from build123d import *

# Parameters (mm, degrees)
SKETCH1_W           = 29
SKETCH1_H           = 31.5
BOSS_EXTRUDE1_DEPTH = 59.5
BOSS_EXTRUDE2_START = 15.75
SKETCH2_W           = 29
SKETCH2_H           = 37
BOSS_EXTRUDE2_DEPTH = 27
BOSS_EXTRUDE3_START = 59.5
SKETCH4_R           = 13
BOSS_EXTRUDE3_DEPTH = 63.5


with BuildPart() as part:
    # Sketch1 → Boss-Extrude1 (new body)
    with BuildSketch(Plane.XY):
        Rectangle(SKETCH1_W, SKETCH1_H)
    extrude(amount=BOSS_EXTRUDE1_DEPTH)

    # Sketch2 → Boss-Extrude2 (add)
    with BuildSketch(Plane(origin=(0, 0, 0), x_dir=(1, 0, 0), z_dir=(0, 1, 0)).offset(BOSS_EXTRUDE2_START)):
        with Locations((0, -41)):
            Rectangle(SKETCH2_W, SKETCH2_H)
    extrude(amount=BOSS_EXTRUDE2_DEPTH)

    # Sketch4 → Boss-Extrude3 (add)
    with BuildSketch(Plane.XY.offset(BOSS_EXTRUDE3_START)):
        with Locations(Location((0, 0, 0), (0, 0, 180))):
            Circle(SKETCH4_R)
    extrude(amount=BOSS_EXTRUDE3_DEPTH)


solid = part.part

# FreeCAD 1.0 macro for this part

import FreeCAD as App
import Part
import Sketcher

doc = App.newDocument("Part")
body = doc.addObject("PartDesign::Body", "Body")

sketch1 = body.newObject("Sketcher::SketchObject", "Sketch")
sketch1.AttachmentSupport = (doc.getObject("XY_Plane"), [""])
sketch1.MapMode = "FlatFace"
sketch1.addGeometry([
    Part.LineSegment(App.Vector(-14, 16, 0), App.Vector(-14, -16, 0)),
    Part.LineSegment(App.Vector(-14, -16, 0), App.Vector(14, -16, 0)),
    Part.LineSegment(App.Vector(14, -16, 0), App.Vector(14, 16, 0)),
    Part.LineSegment(App.Vector(14, 16, 0), App.Vector(-14, 16, 0)),
], False)
sketch1.addConstraint([
    Sketcher.Constraint("Coincident", 0, 2, 1, 1),
    Sketcher.Constraint("Coincident", 1, 2, 2, 1),
    Sketcher.Constraint("Coincident", 2, 2, 3, 1),
    Sketcher.Constraint("Coincident", 3, 2, 0, 1),
    Sketcher.Constraint("Vertical", 0),
    Sketcher.Constraint("Horizontal", 1),
    Sketcher.Constraint("Vertical", 2),
    Sketcher.Constraint("Horizontal", 3),
    Sketcher.Constraint("Symmetric", 0, 2, 2, 2, -1, 1),
    Sketcher.Constraint("DistanceX", 1, 1, 1, 2, 29.0),
    Sketcher.Constraint("DistanceY", 0, 2, 0, 1, 31.5),
])
pad1 = body.newObject("PartDesign::Pad", "Pad")
pad1.Profile = sketch1
pad1.Length = 59.5

sketch2 = body.newObject("Sketcher::SketchObject", "Sketch001")
sketch2.AttachmentSupport = (doc.getObject("XZ_Plane"), [""])
sketch2.MapMode = "FlatFace"
sketch2.AttachmentOffset = App.Placement(App.Vector(0, 0, -15.75), App.Rotation())
sketch2.addGeometry([
    Part.LineSegment(App.Vector(-14, 22, 0), App.Vector(-14, 60, 0)),
    Part.LineSegment(App.Vector(-14, 60, 0), App.Vector(14, 60, 0)),
    Part.LineSegment(App.Vector(14, 60, 0), App.Vector(14, 22, 0)),
    Part.LineSegment(App.Vector(14, 22, 0), App.Vector(-14, 22, 0)),
], False)
sketch2.addConstraint([
    Sketcher.Constraint("Coincident", 0, 2, 1, 1),
    Sketcher.Constraint("Coincident", 1, 2, 2, 1),
    Sketcher.Constraint("Coincident", 2, 2, 3, 1),
    Sketcher.Constraint("Coincident", 3, 2, 0, 1),
    Sketcher.Constraint("Vertical", 0),
    Sketcher.Constraint("Horizontal", 1),
    Sketcher.Constraint("Vertical", 2),
    Sketcher.Constraint("Horizontal", 3),
    Sketcher.Constraint("DistanceX", 1, 1, 1, 2, 29.0),
    Sketcher.Constraint("DistanceY", 0, 1, 0, 2, 37.0),
    Sketcher.Constraint("DistanceX", 0, 2, -1, 1, 14.5),
    Sketcher.Constraint("DistanceY", -1, 1, 0, 2, 59.5),
])
pad2 = body.newObject("PartDesign::Pad", "Pad001")
pad2.Profile = sketch2
pad2.Length = 27
pad2.Reversed = True

sketch3 = body.newObject("Sketcher::SketchObject", "Sketch002")
sketch3.AttachmentSupport = (doc.getObject("XY_Plane"), [""])
sketch3.MapMode = "FlatFace"
sketch3.AttachmentOffset = App.Placement(App.Vector(0, 0, 59.5), App.Rotation())
sketch3.addGeometry(Part.Circle(App.Vector(0, 0, 0), App.Vector(0, 0, 1), 13), False)
sketch3.addConstraint([
    Sketcher.Constraint("Coincident", 0, 3, -1, 1),
    Sketcher.Constraint("Diameter", 0, 26.0),
])
pad3 = body.newObject("PartDesign::Pad", "Pad002")
pad3.Profile = sketch3
pad3.Length = 63.5

doc.recompute()
